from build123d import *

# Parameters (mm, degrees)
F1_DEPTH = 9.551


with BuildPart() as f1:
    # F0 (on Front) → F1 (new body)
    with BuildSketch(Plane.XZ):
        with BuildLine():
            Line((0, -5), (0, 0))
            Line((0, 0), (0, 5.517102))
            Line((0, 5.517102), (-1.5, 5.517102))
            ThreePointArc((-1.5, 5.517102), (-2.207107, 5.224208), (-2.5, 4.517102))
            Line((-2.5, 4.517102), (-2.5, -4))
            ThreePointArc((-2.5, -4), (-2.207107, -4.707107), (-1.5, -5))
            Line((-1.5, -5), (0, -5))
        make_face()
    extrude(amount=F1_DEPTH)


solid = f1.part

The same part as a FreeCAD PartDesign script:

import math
import FreeCAD as App
import Part
import Sketcher
from FreeCAD import Vector

doc = App.newDocument("Part")
body = doc.addObject("PartDesign::Body", "Body")

# Sketch on XZ plane
sketch1 = doc.addObject("Sketcher::SketchObject", "Sketch")
body.addObject(sketch1)
sketch1.AttachmentSupport = (doc.XZ_Plane, [""])
sketch1.MapMode = "FlatFace"
sketch1.addGeometry([
    Part.LineSegment(Vector(0, -5, 0), Vector(0, 5.5, 0)),  # 0
    Part.LineSegment(Vector(0, 5.5, 0), Vector(-1.5, 5.5, 0)),  # 1
    Part.ArcOfCircle(Part.Circle(Vector(-1.5, 4.5, 0), Vector(0, 0, 1), 1), math.radians(90), math.radians(180)),  # 2
    Part.LineSegment(Vector(-2.5, 4.5, 0), Vector(-2.5, -4, 0)),  # 3
    Part.ArcOfCircle(Part.Circle(Vector(-1.5, -4, 0), Vector(0, 0, 1), 1), math.radians(180), math.radians(270)),  # 4
    Part.LineSegment(Vector(-1.5, -5, 0), Vector(0, -5, 0)),  # 5
], False)
sketch1.addConstraint([
    Sketcher.Constraint("Coincident", 0, 2, 1, 1),
    Sketcher.Constraint("Tangent", 1, 2, 2, 1),
    Sketcher.Constraint("Tangent", 2, 2, 3, 1),
    Sketcher.Constraint("Tangent", 3, 2, 4, 1),
    Sketcher.Constraint("Tangent", 4, 2, 5, 1),
    Sketcher.Constraint("Coincident", 5, 2, 0, 1),
    Sketcher.Constraint("Vertical", 0),
    Sketcher.Constraint("Horizontal", 1),
    Sketcher.Constraint("Vertical", 3),
    Sketcher.Constraint("Horizontal", 5),
    Sketcher.Constraint("Equal", 2, 4),
    Sketcher.Constraint("PointOnObject", 0, 2, -2),
    Sketcher.Constraint("Radius", 2, 1.000001),
    Sketcher.Constraint("DistanceX", 1, 2, 1, 1, 1.5),
    Sketcher.Constraint("DistanceY", 4, 3, -1, 1, 4.000001),
    Sketcher.Constraint("DistanceY", -1, 1, 2, 3, 4.517101),
])
pad1 = doc.addObject("PartDesign::Pad", "Pad")
body.addObject(pad1)
pad1.Profile = sketch1
pad1.Length = 9.551

doc.recompute()
